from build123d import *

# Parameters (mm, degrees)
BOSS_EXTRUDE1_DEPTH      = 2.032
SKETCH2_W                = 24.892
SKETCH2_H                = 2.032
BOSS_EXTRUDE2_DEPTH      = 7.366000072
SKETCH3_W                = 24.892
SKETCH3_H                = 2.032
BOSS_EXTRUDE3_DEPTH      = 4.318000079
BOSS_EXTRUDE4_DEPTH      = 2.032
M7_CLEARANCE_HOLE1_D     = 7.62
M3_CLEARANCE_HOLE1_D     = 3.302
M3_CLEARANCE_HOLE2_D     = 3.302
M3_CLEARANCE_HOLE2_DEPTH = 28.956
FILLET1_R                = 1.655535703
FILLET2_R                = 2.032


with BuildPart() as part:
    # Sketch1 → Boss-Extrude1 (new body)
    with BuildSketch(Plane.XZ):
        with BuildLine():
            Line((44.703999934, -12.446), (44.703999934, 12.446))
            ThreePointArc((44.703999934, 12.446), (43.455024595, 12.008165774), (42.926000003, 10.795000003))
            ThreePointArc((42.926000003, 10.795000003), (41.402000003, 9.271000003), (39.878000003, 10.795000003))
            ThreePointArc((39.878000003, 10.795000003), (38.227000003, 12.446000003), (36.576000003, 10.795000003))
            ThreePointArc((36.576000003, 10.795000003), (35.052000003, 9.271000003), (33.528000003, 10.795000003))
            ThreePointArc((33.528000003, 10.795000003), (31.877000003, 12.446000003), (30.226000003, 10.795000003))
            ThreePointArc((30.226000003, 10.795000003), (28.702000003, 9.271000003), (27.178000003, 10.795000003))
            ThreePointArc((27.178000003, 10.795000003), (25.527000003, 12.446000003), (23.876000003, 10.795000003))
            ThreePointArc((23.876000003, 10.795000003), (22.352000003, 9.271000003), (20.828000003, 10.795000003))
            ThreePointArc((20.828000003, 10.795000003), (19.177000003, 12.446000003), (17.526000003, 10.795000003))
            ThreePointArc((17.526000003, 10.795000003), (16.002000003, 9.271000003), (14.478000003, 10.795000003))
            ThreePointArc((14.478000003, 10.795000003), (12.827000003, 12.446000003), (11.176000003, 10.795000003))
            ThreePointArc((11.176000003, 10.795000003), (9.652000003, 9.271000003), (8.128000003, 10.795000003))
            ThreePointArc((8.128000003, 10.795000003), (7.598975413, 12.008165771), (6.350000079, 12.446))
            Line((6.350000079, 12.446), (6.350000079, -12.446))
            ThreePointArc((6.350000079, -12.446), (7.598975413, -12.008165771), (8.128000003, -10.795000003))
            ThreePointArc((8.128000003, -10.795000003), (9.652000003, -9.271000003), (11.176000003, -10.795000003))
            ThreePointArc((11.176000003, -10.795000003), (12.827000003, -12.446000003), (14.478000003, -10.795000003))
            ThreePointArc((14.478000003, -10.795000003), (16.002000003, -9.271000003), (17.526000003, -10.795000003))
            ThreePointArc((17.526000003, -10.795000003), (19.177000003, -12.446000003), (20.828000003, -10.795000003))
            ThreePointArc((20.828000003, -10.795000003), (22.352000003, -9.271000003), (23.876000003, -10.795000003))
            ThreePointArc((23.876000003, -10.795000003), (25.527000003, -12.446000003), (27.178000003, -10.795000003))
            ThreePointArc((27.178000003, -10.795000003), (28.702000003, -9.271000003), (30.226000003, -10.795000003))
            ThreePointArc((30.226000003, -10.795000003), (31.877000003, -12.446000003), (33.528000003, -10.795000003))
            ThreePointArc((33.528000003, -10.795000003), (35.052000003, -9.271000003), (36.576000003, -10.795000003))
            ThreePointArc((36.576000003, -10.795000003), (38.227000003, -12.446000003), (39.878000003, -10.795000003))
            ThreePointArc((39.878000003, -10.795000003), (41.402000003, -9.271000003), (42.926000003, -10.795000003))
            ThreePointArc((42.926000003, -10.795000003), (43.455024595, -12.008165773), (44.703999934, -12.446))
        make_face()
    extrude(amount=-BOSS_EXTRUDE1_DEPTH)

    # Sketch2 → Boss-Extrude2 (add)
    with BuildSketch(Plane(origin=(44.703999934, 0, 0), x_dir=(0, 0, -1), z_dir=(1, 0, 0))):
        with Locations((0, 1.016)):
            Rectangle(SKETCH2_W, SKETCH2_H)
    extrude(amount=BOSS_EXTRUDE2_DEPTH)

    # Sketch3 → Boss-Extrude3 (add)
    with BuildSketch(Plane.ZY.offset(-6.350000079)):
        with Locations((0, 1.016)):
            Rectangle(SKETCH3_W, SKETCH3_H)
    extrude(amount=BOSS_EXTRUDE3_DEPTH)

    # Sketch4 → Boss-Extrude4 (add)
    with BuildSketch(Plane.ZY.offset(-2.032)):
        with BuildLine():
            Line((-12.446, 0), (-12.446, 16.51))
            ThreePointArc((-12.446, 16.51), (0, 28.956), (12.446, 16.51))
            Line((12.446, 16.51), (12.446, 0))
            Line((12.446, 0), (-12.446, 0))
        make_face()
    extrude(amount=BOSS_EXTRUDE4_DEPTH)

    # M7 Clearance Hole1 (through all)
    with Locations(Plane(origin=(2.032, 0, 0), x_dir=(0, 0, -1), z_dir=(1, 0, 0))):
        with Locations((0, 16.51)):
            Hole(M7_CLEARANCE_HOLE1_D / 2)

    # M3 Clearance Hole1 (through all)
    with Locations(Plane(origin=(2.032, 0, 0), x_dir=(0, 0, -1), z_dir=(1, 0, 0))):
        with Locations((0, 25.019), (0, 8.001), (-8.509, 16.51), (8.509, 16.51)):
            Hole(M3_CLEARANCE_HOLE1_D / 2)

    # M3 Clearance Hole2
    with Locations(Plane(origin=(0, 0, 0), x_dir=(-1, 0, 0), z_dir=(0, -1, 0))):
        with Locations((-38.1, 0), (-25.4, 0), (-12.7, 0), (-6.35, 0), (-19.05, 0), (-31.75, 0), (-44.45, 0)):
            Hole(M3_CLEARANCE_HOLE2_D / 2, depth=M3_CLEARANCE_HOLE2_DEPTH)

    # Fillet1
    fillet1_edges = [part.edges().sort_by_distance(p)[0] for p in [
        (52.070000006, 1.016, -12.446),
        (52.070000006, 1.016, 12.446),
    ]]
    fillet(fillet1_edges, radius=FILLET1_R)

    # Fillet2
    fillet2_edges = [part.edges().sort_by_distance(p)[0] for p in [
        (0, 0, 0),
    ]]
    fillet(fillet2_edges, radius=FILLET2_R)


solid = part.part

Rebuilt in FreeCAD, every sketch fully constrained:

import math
import FreeCAD as App
import Part
import Sketcher
Q = App.Units.Quantity


def edges_at(feature, points):
    """Names of the edges that pass closest to the given points."""
    edges = feature.Shape.Edges
    near = lambda p: min(range(len(edges)), key=lambda i: edges[i].distToShape(Part.Vertex(*p))[0])
    return sorted({f"Edge{near(p) + 1}" for p in points})

doc = App.newDocument("Part")
body = doc.addObject("PartDesign::Body", "Body")

# Sketch on XZ plane
sketch1 = body.newObject("Sketcher::SketchObject", "Sketch")
sketch1.AttachmentSupport = (doc.getObject("XZ_Plane"), [""])
sketch1.MapMode = "FlatFace"
sketch1.addGeometry([
    Part.LineSegment(App.Vector(44.7, -12.4, 0), App.Vector(44.7, 12.4, 0)),  # 0
    Part.ArcOfCircle(Part.Circle(App.Vector(44.6, 10.8, 0), App.Vector(0, 0, 1), 1.7), math.radians(86), math.radians(180)),  # 1
    Part.ArcOfCircle(Part.Circle(App.Vector(41.4, 10.8, 0), App.Vector(0, 0, 1), 1.5), math.radians(180), math.radians(360)),  # 2
    Part.ArcOfCircle(Part.Circle(App.Vector(38.2, 10.8, 0), App.Vector(0, 0, 1), 1.7), math.radians(0), math.radians(180)),  # 3
    Part.ArcOfCircle(Part.Circle(App.Vector(35.1, 10.8, 0), App.Vector(0, 0, 1), 1.5), math.radians(180), math.radians(360)),  # 4
    Part.ArcOfCircle(Part.Circle(App.Vector(31.9, 10.8, 0), App.Vector(0, 0, 1), 1.7), math.radians(0), math.radians(180)),  # 5
    Part.ArcOfCircle(Part.Circle(App.Vector(28.7, 10.8, 0), App.Vector(0, 0, 1), 1.5), math.radians(180), math.radians(360)),  # 6
    Part.ArcOfCircle(Part.Circle(App.Vector(25.5, 10.8, 0), App.Vector(0, 0, 1), 1.7), math.radians(0), math.radians(180)),  # 7
    Part.ArcOfCircle(Part.Circle(App.Vector(22.4, 10.8, 0), App.Vector(0, 0, 1), 1.5), math.radians(180), math.radians(360)),  # 8
    Part.ArcOfCircle(Part.Circle(App.Vector(19.2, 10.8, 0), App.Vector(0, 0, 1), 1.7), math.radians(0), math.radians(180)),  # 9
    Part.ArcOfCircle(Part.Circle(App.Vector(16, 10.8, 0), App.Vector(0, 0, 1), 1.5), math.radians(180), math.radians(360)),  # 10
    Part.ArcOfCircle(Part.Circle(App.Vector(12.8, 10.8, 0), App.Vector(0, 0, 1), 1.7), math.radians(0), math.radians(180)),  # 11
    Part.ArcOfCircle(Part.Circle(App.Vector(9.7, 10.8, 0), App.Vector(0, 0, 1), 1.5), math.radians(180), math.radians(360)),  # 12
    Part.ArcOfCircle(Part.Circle(App.Vector(6.5, 10.8, 0), App.Vector(0, 0, 1), 1.7), math.radians(0), math.radians(94)),  # 13
    Part.LineSegment(App.Vector(6.4, 12.4, 0), App.Vector(6.4, -12.4, 0)),  # 14
    Part.ArcOfCircle(Part.Circle(App.Vector(6.5, -10.8, 0), App.Vector(0, 0, 1), 1.7), math.radians(-94), math.radians(0)),  # 15
    Part.ArcOfCircle(Part.Circle(App.Vector(9.7, -10.8, 0), App.Vector(0, 0, 1), 1.5), math.radians(0), math.radians(180)),  # 16
    Part.ArcOfCircle(Part.Circle(App.Vector(12.8, -10.8, 0), App.Vector(0, 0, 1), 1.7), math.radians(180), math.radians(360)),  # 17
    Part.ArcOfCircle(Part.Circle(App.Vector(16, -10.8, 0), App.Vector(0, 0, 1), 1.5), math.radians(0), math.radians(180)),  # 18
    Part.ArcOfCircle(Part.Circle(App.Vector(19.2, -10.8, 0), App.Vector(0, 0, 1), 1.7), math.radians(180), math.radians(360)),  # 19
    Part.ArcOfCircle(Part.Circle(App.Vector(22.4, -10.8, 0), App.Vector(0, 0, 1), 1.5), math.radians(0), math.radians(180)),  # 20
    Part.ArcOfCircle(Part.Circle(App.Vector(25.5, -10.8, 0), App.Vector(0, 0, 1), 1.7), math.radians(180), math.radians(360)),  # 21
    Part.ArcOfCircle(Part.Circle(App.Vector(28.7, -10.8, 0), App.Vector(0, 0, 1), 1.5), math.radians(0), math.radians(180)),  # 22
    Part.ArcOfCircle(Part.Circle(App.Vector(31.9, -10.8, 0), App.Vector(0, 0, 1), 1.7), math.radians(180), math.radians(360)),  # 23
    Part.ArcOfCircle(Part.Circle(App.Vector(35.1, -10.8, 0), App.Vector(0, 0, 1), 1.5), math.radians(0), math.radians(180)),  # 24
    Part.ArcOfCircle(Part.Circle(App.Vector(38.2, -10.8, 0), App.Vector(0, 0, 1), 1.7), math.radians(180), math.radians(360)),  # 25
    Part.ArcOfCircle(Part.Circle(App.Vector(41.4, -10.8, 0), App.Vector(0, 0, 1), 1.5), math.radians(0), math.radians(180)),  # 26
    Part.ArcOfCircle(Part.Circle(App.Vector(44.6, -10.8, 0), App.Vector(0, 0, 1), 1.7), math.radians(180), math.radians(274)),  # 27
], False)
sketch1.addConstraint([
    Sketcher.Constraint("Coincident", 0, 2, 1, 1),
    Sketcher.Constraint("Tangent", 1, 2, 2, 2),
    Sketcher.Constraint("Tangent", 2, 1, 3, 1),
    Sketcher.Constraint("Tangent", 3, 2, 4, 2),
    Sketcher.Constraint("Tangent", 4, 1, 5, 1),
    Sketcher.Constraint("Tangent", 5, 2, 6, 2),
    Sketcher.Constraint("Tangent", 6, 1, 7, 1),
    Sketcher.Constraint("Tangent", 7, 2, 8, 2),
    Sketcher.Constraint("Tangent", 8, 1, 9, 1),
    Sketcher.Constraint("Tangent", 9, 2, 10, 2),
    Sketcher.Constraint("Tangent", 10, 1, 11, 1),
    Sketcher.Constraint("Tangent", 11, 2, 12, 2),
    Sketcher.Constraint("Tangent", 12, 1, 13, 1),
    Sketcher.Constraint("Coincident", 13, 2, 14, 1),
    Sketcher.Constraint("Coincident", 14, 2, 15, 1),
    Sketcher.Constraint("Tangent", 15, 2, 16, 2),
    Sketcher.Constraint("Tangent", 16, 1, 17, 1),
    Sketcher.Constraint("Tangent", 17, 2, 18, 2),
    Sketcher.Constraint("Tangent", 18, 1, 19, 1),
    Sketcher.Constraint("Tangent", 19, 2, 20, 2),
    Sketcher.Constraint("Tangent", 20, 1, 21, 1),
    Sketcher.Constraint("Tangent", 21, 2, 22, 2),
    Sketcher.Constraint("Tangent", 22, 1, 23, 1),
    Sketcher.Constraint("Tangent", 23, 2, 24, 2),
    Sketcher.Constraint("Tangent", 24, 1, 25, 1),
    Sketcher.Constraint("Tangent", 25, 2, 26, 2),
    Sketcher.Constraint("Tangent", 26, 1, 27, 1),
    Sketcher.Constraint("Coincident", 27, 2, 0, 1),
    Sketcher.Constraint("Vertical", 0),
    Sketcher.Constraint("Vertical", 14),
    Sketcher.Constraint("Equal", 2, 4),
    Sketcher.Constraint("Equal", 3, 5),
    Sketcher.Constraint("Equal", 4, 6),
    Sketcher.Constraint("Equal", 5, 7),
    Sketcher.Constraint("Equal", 6, 8),
    Sketcher.Constraint("Equal", 7, 9),
    Sketcher.Constraint("Equal", 8, 10),
    Sketcher.Constraint("Equal", 9, 11),
    Sketcher.Constraint("Equal", 10, 12),
    Sketcher.Constraint("Equal", 1, 13),
    Sketcher.Constraint("Equal", 13, 15),
    Sketcher.Constraint("Equal", 12, 16),
    Sketcher.Constraint("Equal", 11, 17),
    Sketcher.Constraint("Equal", 16, 18),
    Sketcher.Constraint("Equal", 17, 19),
    Sketcher.Constraint("Equal", 18, 20),
    Sketcher.Constraint("Equal", 19, 21),
    Sketcher.Constraint("Equal", 20, 22),
    Sketcher.Constraint("Equal", 21, 23),
    Sketcher.Constraint("Equal", 22, 24),
    Sketcher.Constraint("Equal", 23, 25),
    Sketcher.Constraint("Equal", 24, 26),
    Sketcher.Constraint("Equal", 15, 27),
    Sketcher.Constraint("Symmetric", 13, 3, 15, 3, -1),
    Sketcher.Constraint("Horizontal", 1, 3, 2, 3),
    Sketcher.Constraint("Horizontal", 2, 3, 3, 3),
    Sketcher.Constraint("Horizontal", 3, 3, 4, 3),
    Sketcher.Constraint("Horizontal", 4, 3, 5, 3),
    Sketcher.Constraint("Horizontal", 5, 3, 6, 3),
    Sketcher.Constraint("Horizontal", 6, 3, 7, 3),
    Sketcher.Constraint("Horizontal", 7, 3, 8, 3),
    Sketcher.Constraint("Horizontal", 8, 3, 9, 3),
    Sketcher.Constraint("Horizontal", 9, 3, 10, 3),
    Sketcher.Constraint("Horizontal", 10, 3, 11, 3),
    Sketcher.Constraint("Horizontal", 11, 3, 12, 3),
    Sketcher.Constraint("Horizontal", 12, 3, 13, 3),
    Sketcher.Constraint("Horizontal", 15, 3, 16, 3),
    Sketcher.Constraint("Horizontal", 16, 3, 17, 3),
    Sketcher.Constraint("Horizontal", 17, 3, 18, 3),
    Sketcher.Constraint("Horizontal", 18, 3, 19, 3),
    Sketcher.Constraint("Horizontal", 19, 3, 20, 3),
    Sketcher.Constraint("Horizontal", 20, 3, 21, 3),
    Sketcher.Constraint("Horizontal", 21, 3, 22, 3),
    Sketcher.Constraint("Horizontal", 22, 3, 23, 3),
    Sketcher.Constraint("Horizontal", 23, 3, 24, 3),
    Sketcher.Constraint("Horizontal", 24, 3, 25, 3),
    Sketcher.Constraint("Horizontal", 25, 3, 26, 3),
    Sketcher.Constraint("Horizontal", 26, 3, 27, 3),
    Sketcher.Constraint("Horizontal", 0, 2, 13, 2),
    Sketcher.Constraint("Radius", 2, Q("0.06 in")),
    Sketcher.Constraint("Radius", 3, Q("0.065 in")),
    Sketcher.Constraint("DistanceY", 0, 1, 0, 2, Q("0.98 in")),
    Sketcher.Constraint("DistanceX", -1, 1, 2, 3, Q("1.63 in")),
    Sketcher.Constraint("DistanceX", -1, 1, 0, 2, Q("1.76 in")),
    Sketcher.Constraint("DistanceY", 15, 3, 13, 3, Q("0.85 in")),
])
pad1 = body.newObject("PartDesign::Pad", "Pad")
pad1.Profile = sketch1
pad1.Length = Q("0.08 in")
pad1.Reversed = True

# Sketch on YZ plane
sketch2 = body.newObject("Sketcher::SketchObject", "Sketch001")
sketch2.AttachmentSupport = (doc.getObject("YZ_Plane"), [""])
sketch2.MapMode = "FlatFace"
sketch2.AttachmentOffset = App.Placement(App.Vector(0, 0, 1.76 * 25.4), App.Rotation())
sketch2.addGeometry([
    Part.LineSegment(App.Vector(2, 12.4, 0), App.Vector(0, 12.4, 0)),
    Part.LineSegment(App.Vector(0, 12.4, 0), App.Vector(0, -12.4, 0)),
    Part.LineSegment(App.Vector(0, -12.4, 0), App.Vector(2, -12.4, 0)),
    Part.LineSegment(App.Vector(2, -12.4, 0), App.Vector(2, 12.4, 0)),
], False)
sketch2.addConstraint([
    Sketcher.Constraint("Coincident", 0, 2, 1, 1),
    Sketcher.Constraint("Coincident", 1, 2, 2, 1),
    Sketcher.Constraint("Coincident", 2, 2, 3, 1),
    Sketcher.Constraint("Coincident", 3, 2, 0, 1),
    Sketcher.Constraint("Horizontal", 0),
    Sketcher.Constraint("Vertical", 1),
    Sketcher.Constraint("Horizontal", 2),
    Sketcher.Constraint("Vertical", 3),
    Sketcher.Constraint("Symmetric", 0, 2, 1, 2, -1, 1),
    Sketcher.Constraint("DistanceX", 0, 2, 0, 1, Q("0.08 in")),
    Sketcher.Constraint("DistanceY", 1, 2, 1, 1, Q("0.98 in")),
])
pad2 = body.newObject("PartDesign::Pad", "Pad001")
pad2.Profile = sketch2
pad2.Length = Q("0.29 in")

# Sketch on YZ plane
sketch3 = body.newObject("Sketcher::SketchObject", "Sketch002")
sketch3.AttachmentSupport = (doc.getObject("YZ_Plane"), [""])
sketch3.MapMode = "FlatFace"
sketch3.AttachmentOffset = App.Placement(App.Vector(0, 0, 0.25 * 25.4), App.Rotation())
sketch3.addGeometry([
    Part.LineSegment(App.Vector(2, -12.4, 0), App.Vector(0, -12.4, 0)),
    Part.LineSegment(App.Vector(0, -12.4, 0), App.Vector(0, 12.4, 0)),
    Part.LineSegment(App.Vector(0, 12.4, 0), App.Vector(2, 12.4, 0)),
    Part.LineSegment(App.Vector(2, 12.4, 0), App.Vector(2, -12.4, 0)),
], False)
sketch3.addConstraint([
    Sketcher.Constraint("Coincident", 0, 2, 1, 1),
    Sketcher.Constraint("Coincident", 1, 2, 2, 1),
    Sketcher.Constraint("Coincident", 2, 2, 3, 1),
    Sketcher.Constraint("Coincident", 3, 2, 0, 1),
    Sketcher.Constraint("Horizontal", 0),
    Sketcher.Constraint("Vertical", 1),
    Sketcher.Constraint("Horizontal", 2),
    Sketcher.Constraint("Vertical", 3),
    Sketcher.Constraint("Symmetric", 0, 2, 1, 2, -1, 1),
    Sketcher.Constraint("DistanceX", 0, 2, 0, 1, Q("0.08 in")),
    Sketcher.Constraint("DistanceY", 1, 1, 1, 2, Q("0.98 in")),
])
pad3 = body.newObject("PartDesign::Pad", "Pad002")
pad3.Profile = sketch3
pad3.Length = Q("0.17 in")
pad3.Reversed = True

# Sketch on YZ plane
sketch4 = body.newObject("Sketcher::SketchObject", "Sketch003")
sketch4.AttachmentSupport = (doc.getObject("YZ_Plane"), [""])
sketch4.MapMode = "FlatFace"
sketch4.AttachmentOffset = App.Placement(App.Vector(0, 0, 0.08 * 25.4), App.Rotation())
sketch4.addGeometry([
    Part.LineSegment(App.Vector(17, -12, 0), App.Vector(0, -12, 0)),
    Part.LineSegment(App.Vector(0, -12, 0), App.Vector(0, 12, 0)),
    Part.LineSegment(App.Vector(0, 12, 0), App.Vector(17, 12, 0)),
    Part.ArcOfCircle(Part.Circle(App.Vector(17, 0, 0), App.Vector(0, 0, 1), 12), math.radians(-90), math.radians(90)),
], False)
sketch4.addConstraint([
    Sketcher.Constraint("Coincident", 0, 2, 1, 1),
    Sketcher.Constraint("Coincident", 1, 2, 2, 1),
    Sketcher.Constraint("Tangent", 2, 2, 3, 2),
    Sketcher.Constraint("Tangent", 3, 1, 0, 1),
    Sketcher.Constraint("Horizontal", 0),
    Sketcher.Constraint("Vertical", 1),
    Sketcher.Constraint("Horizontal", 2),
    Sketcher.Constraint("Symmetric", 0, 2, 1, 2, -1, 1),
    Sketcher.Constraint("Radius", 3, Q("0.49 in")),
    Sketcher.Constraint("DistanceX", 0, 2, 0, 1, Q("0.65 in")),
])
pad4 = body.newObject("PartDesign::Pad", "Pad003")
pad4.Profile = sketch4
pad4.Length = Q("0.08 in")
pad4.Reversed = True

# Sketch on YZ plane
sketch5 = body.newObject("Sketcher::SketchObject", "Sketch004")
sketch5.AttachmentSupport = (doc.getObject("YZ_Plane"), [""])
sketch5.MapMode = "FlatFace"
sketch5.AttachmentOffset = App.Placement(App.Vector(0, 0, 0.08 * 25.4), App.Rotation())
sketch5.addGeometry(Part.Circle(App.Vector(16.5, 0, 0), App.Vector(0, 0, 1), 3.8), False)
sketch5.addConstraint([
    Sketcher.Constraint("PointOnObject", 0, 3, -1),
    Sketcher.Constraint("Diameter", 0, Q("0.3 in")),
    Sketcher.Constraint("DistanceX", -1, 1, 0, 3, Q("0.65 in")),
])
doc.recompute()
hole = body.newObject("PartDesign::Hole", "Hole")
hole.Profile = sketch5
hole.ThreadType = "None"
hole.Diameter = Q("0.3 in")
hole.DepthType = "ThroughAll"

# Sketch on YZ plane
sketch6 = body.newObject("Sketcher::SketchObject", "Sketch005")
sketch6.AttachmentSupport = (doc.getObject("YZ_Plane"), [""])
sketch6.MapMode = "FlatFace"
sketch6.AttachmentOffset = App.Placement(App.Vector(0, 0, 0.08 * 25.4), App.Rotation())
sketch6.addGeometry([
    Part.Circle(App.Vector(25, 0, 0), App.Vector(0, 0, 1), 1.7),
    Part.Circle(App.Vector(8, 0, 0), App.Vector(0, 0, 1), 1.7),
    Part.Circle(App.Vector(16.5, 8.5, 0), App.Vector(0, 0, 1), 1.7),
    Part.Circle(App.Vector(16.5, -8.5, 0), App.Vector(0, 0, 1), 1.7),
], False)
sketch6.addConstraint([
    Sketcher.Constraint("Equal", 0, 1),
    Sketcher.Constraint("Equal", 1, 2),
    Sketcher.Constraint("Equal", 2, 3),
    Sketcher.Constraint("Symmetric", 2, 3, 3, 3, -1),
    Sketcher.Constraint("PointOnObject", 0, 3, -1),
    Sketcher.Constraint("PointOnObject", 1, 3, -1),
    Sketcher.Constraint("Diameter", 0, Q("0.13 in")),
    Sketcher.Constraint("DistanceX", -1, 1, 2, 3, Q("0.65 in")),
    Sketcher.Constraint("DistanceX", 1, 3, 0, 3, Q("0.67 in")),
    Sketcher.Constraint("DistanceY", 3, 3, 2, 3, Q("0.67 in")),
    Sketcher.Constraint("DistanceX", -1, 1, 0, 3, Q("0.985 in")),
])
doc.recompute()
hole2 = body.newObject("PartDesign::Hole", "Hole001")
hole2.Profile = sketch6
hole2.ThreadType = "None"
hole2.Diameter = Q("0.13 in")
hole2.DepthType = "ThroughAll"

# Sketch on XZ plane
sketch7 = body.newObject("Sketcher::SketchObject", "Sketch006")
sketch7.AttachmentSupport = (doc.getObject("XZ_Plane"), [""])
sketch7.MapMode = "FlatFace"
sketch7.addGeometry([
    Part.Circle(App.Vector(38.1, 0, 0), App.Vector(0, 0, 1), 1.7),  # 0
    Part.Circle(App.Vector(25.4, 0, 0), App.Vector(0, 0, 1), 1.7),  # 1
    Part.Circle(App.Vector(12.7, 0, 0), App.Vector(0, 0, 1), 1.7),  # 2
    Part.Circle(App.Vector(6.3, 0, 0), App.Vector(0, 0, 1), 1.7),  # 3
    Part.Circle(App.Vector(19.1, 0, 0), App.Vector(0, 0, 1), 1.7),  # 4
    Part.Circle(App.Vector(31.8, 0, 0), App.Vector(0, 0, 1), 1.7),  # 5
    Part.Circle(App.Vector(44.5, 0, 0), App.Vector(0, 0, 1), 1.7),  # 6
], False)
sketch7.addConstraint([
    Sketcher.Constraint("Equal", 0, 1),
    Sketcher.Constraint("Equal", 1, 2),
    Sketcher.Constraint("Equal", 2, 3),
    Sketcher.Constraint("Equal", 3, 4),
    Sketcher.Constraint("Equal", 4, 5),
    Sketcher.Constraint("Equal", 5, 6),
    Sketcher.Constraint("PointOnObject", 0, 3, -1),
    Sketcher.Constraint("PointOnObject", 1, 3, -1),
    Sketcher.Constraint("PointOnObject", 2, 3, -1),
    Sketcher.Constraint("PointOnObject", 3, 3, -1),
    Sketcher.Constraint("PointOnObject", 4, 3, -1),
    Sketcher.Constraint("PointOnObject", 5, 3, -1),
    Sketcher.Constraint("PointOnObject", 6, 3, -1),
    Sketcher.Constraint("Diameter", 0, Q("0.13 in")),
    Sketcher.Constraint("DistanceX", -1, 1, 1, 3, Q("1 in")),
    Sketcher.Constraint("DistanceX", 2, 3, 0, 3, Q("1 in")),
    Sketcher.Constraint("DistanceX", 3, 3, 5, 3, Q("1 in")),
    Sketcher.Constraint("DistanceX", 4, 3, 6, 3, Q("1 in")),
    Sketcher.Constraint("DistanceX", -1, 1, 0, 3, Q("1.5 in")),
    Sketcher.Constraint("DistanceX", 3, 3, 4, 3, Q("0.5 in")),
    Sketcher.Constraint("DistanceX", -1, 1, 3, 3, Q("0.25 in")),
])
doc.recompute()
hole3 = body.newObject("PartDesign::Hole", "Hole002")
hole3.Profile = sketch7
hole3.ThreadType = "None"
hole3.Diameter = Q("0.13 in")
hole3.DepthType = "Dimension"
hole3.Depth = Q("1.14 in")
hole3.DrillPoint = "Flat"
doc.recompute()

fillet = body.newObject("PartDesign::Fillet", "Fillet")
fillet.Base = (hole3, edges_at(hole3, [(52.07, 1.016, -12.446), (52.07, 1.016, 12.446)]))
fillet.Radius = 1.655536
doc.recompute()

fillet2 = body.newObject("PartDesign::Fillet", "Fillet001")
fillet2.Base = (fillet, edges_at(fillet, [(0, 0, 0)]))
fillet2.Radius = Q("0.08 in")

doc.recompute()
